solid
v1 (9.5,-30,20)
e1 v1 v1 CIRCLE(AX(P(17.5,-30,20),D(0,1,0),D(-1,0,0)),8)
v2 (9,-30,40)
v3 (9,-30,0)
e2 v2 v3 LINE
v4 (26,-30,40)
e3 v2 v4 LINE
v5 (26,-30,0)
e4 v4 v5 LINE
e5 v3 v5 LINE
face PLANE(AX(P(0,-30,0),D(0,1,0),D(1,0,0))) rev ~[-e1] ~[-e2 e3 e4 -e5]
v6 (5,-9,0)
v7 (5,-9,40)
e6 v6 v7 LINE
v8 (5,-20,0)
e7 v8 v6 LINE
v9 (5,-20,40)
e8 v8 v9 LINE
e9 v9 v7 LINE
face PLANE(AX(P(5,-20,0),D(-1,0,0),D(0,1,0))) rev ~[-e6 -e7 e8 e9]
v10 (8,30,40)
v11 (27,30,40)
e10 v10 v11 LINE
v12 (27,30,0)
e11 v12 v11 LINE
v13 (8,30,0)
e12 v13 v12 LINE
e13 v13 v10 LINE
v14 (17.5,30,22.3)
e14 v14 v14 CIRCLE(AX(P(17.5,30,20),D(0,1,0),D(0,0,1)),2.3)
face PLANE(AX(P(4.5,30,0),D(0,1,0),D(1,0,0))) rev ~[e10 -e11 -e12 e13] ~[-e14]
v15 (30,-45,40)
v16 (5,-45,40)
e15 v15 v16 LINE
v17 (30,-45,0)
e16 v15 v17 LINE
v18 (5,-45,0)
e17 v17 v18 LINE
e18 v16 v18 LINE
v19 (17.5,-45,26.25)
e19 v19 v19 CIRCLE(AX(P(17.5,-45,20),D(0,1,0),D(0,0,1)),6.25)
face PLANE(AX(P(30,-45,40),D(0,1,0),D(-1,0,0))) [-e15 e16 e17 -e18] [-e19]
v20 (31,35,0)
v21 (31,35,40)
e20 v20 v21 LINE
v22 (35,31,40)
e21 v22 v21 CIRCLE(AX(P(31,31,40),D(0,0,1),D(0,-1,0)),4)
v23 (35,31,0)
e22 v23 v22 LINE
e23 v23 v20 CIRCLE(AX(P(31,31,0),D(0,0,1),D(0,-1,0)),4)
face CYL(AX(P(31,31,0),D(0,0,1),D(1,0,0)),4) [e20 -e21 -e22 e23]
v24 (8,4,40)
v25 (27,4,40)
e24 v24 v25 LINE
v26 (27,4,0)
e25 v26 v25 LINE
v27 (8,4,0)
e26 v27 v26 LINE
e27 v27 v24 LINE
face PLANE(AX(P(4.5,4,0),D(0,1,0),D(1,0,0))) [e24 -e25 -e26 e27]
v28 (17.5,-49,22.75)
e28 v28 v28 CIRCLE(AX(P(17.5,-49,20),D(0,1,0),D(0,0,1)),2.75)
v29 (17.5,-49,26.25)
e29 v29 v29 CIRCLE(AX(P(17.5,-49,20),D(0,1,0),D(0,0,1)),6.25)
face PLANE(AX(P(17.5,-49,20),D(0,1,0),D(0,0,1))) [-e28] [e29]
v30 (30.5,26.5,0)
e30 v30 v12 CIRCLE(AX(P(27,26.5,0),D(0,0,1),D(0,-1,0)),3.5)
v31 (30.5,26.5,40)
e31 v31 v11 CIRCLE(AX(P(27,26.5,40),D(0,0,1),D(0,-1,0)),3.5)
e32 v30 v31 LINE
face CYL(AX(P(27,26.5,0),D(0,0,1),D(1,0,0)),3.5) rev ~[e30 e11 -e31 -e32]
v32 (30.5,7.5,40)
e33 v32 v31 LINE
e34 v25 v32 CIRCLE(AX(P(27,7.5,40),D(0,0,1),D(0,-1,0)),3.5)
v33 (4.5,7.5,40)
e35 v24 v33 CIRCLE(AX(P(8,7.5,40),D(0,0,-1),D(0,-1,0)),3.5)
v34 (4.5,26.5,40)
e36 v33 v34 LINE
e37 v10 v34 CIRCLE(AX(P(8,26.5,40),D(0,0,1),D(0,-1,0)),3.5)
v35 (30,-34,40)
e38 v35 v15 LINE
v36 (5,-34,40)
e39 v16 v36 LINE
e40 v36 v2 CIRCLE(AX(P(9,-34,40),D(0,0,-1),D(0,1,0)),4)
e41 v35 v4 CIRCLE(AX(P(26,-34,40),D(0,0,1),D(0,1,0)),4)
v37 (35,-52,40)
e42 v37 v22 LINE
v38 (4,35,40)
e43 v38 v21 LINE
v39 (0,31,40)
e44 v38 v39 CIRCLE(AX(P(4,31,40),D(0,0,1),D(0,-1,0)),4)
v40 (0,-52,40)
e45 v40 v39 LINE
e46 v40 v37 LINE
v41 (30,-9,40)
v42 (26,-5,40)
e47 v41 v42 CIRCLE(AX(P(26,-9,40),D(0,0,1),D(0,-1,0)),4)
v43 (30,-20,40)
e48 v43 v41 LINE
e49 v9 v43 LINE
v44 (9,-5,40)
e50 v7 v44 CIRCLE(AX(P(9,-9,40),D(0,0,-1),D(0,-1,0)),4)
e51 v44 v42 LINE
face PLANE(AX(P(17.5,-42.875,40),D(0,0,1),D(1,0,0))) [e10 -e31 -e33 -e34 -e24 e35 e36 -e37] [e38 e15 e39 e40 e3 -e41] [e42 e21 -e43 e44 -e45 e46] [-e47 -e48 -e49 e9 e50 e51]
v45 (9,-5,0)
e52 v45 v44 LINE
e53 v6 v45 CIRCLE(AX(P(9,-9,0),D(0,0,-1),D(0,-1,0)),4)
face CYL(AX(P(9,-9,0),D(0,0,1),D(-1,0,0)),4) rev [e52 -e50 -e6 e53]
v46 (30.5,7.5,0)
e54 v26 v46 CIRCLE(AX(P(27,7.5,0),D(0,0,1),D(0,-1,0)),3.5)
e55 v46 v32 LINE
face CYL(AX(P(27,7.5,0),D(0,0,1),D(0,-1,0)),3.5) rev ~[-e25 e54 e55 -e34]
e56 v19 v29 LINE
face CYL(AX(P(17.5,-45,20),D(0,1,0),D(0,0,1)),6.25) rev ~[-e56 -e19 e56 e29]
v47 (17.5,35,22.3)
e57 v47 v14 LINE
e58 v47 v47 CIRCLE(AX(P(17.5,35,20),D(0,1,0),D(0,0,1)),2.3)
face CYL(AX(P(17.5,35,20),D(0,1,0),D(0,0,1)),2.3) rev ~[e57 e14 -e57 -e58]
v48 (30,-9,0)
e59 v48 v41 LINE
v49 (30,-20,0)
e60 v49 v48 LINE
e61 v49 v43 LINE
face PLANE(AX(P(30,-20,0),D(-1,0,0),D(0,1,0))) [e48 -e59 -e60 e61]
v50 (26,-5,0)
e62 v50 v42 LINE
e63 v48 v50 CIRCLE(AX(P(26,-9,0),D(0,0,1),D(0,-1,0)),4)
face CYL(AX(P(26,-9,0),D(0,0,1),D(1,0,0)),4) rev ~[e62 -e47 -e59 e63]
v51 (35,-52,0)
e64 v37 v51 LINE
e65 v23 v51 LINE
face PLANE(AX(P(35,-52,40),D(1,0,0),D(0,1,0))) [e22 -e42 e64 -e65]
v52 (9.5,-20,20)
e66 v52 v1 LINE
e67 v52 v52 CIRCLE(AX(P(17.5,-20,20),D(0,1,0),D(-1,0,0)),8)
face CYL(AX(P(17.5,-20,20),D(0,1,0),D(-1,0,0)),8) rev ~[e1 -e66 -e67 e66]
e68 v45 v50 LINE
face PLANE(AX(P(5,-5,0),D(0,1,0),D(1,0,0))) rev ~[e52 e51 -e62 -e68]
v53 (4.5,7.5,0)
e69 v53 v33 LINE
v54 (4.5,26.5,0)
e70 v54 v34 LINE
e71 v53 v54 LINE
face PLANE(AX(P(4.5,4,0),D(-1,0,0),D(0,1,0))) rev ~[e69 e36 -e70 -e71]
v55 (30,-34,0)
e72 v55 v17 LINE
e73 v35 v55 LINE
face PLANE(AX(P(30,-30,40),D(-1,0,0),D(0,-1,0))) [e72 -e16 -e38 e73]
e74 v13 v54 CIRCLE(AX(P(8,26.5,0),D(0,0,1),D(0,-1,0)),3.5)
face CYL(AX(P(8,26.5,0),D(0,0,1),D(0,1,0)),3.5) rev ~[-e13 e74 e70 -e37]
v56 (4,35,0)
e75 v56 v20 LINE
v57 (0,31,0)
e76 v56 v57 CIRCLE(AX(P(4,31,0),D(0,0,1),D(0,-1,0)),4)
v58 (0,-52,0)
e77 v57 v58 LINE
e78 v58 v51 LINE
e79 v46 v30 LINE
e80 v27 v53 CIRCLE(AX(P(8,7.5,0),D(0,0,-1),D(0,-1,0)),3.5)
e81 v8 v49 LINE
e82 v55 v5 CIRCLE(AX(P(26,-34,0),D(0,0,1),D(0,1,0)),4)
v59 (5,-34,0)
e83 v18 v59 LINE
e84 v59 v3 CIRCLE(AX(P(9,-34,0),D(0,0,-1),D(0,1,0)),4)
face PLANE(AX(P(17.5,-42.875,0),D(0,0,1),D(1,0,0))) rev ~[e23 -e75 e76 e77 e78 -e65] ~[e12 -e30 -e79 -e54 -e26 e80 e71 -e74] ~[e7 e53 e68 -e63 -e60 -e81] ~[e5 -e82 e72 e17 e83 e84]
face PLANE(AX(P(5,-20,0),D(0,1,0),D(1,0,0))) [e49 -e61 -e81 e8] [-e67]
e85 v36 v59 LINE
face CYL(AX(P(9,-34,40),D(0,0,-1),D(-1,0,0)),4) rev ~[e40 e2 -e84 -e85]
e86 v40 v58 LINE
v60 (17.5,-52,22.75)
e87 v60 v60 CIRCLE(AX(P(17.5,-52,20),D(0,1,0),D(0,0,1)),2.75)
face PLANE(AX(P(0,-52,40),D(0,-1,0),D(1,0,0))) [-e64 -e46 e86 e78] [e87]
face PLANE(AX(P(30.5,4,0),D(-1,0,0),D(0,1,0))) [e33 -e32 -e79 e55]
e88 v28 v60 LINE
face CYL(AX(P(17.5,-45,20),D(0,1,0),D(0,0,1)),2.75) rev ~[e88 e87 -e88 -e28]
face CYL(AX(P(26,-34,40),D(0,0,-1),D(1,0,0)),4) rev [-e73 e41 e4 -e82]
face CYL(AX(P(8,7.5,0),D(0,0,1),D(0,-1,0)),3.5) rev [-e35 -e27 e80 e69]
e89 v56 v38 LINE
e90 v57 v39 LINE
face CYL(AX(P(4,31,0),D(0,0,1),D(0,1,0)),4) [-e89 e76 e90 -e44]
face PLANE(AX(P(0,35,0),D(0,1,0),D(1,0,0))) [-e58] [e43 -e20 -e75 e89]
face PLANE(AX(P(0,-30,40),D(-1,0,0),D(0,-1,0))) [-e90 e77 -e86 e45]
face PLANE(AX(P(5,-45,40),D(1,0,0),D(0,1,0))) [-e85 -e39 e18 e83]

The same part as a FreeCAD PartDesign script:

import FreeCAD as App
import Part
import Sketcher

V = App.Vector
Q = App.Units.Quantity


def edges_at(feature, points):
    """Names of the edges that pass closest to the given points."""
    edges = feature.Shape.Edges
    near = lambda p: min(range(len(edges)), key=lambda i: edges[i].distToShape(Part.Vertex(*p))[0])
    return sorted({f"Edge{near(p) + 1}" for p in points})

doc = App.newDocument("Part")
body = doc.addObject("PartDesign::Body", "Body")

# Sketch on XY plane
sketch1 = body.newObject("Sketcher::SketchObject", "Sketch")
sketch1.AttachmentSupport = (doc.getObject("XY_Plane"), [""])
sketch1.MapMode = "FlatFace"
sketch1.addGeometry(Part.LineSegment(V(0, 35, 0), V(0, -30, 0)), False)
sketch1.addGeometry(Part.LineSegment(V(0, -30, 0), V(35, -30, 0)), False)
sketch1.addGeometry(Part.LineSegment(V(35, -30, 0), V(35, 35, 0)), False)
sketch1.addGeometry(Part.LineSegment(V(35, 35, 0), V(0, 35, 0)), False)
sketch1.addGeometry(Part.LineSegment(V(30, 4, 0), V(4, 4, 0)), False)
sketch1.addGeometry(Part.LineSegment(V(4, 4, 0), V(4, 30, 0)), False)
sketch1.addGeometry(Part.LineSegment(V(4, 30, 0), V(30, 30, 0)), False)
sketch1.addGeometry(Part.LineSegment(V(30, 30, 0), V(30, 4, 0)), False)
sketch1.addGeometry(Part.LineSegment(V(5, -20, 0), V(5, -5, 0)), False)
sketch1.addGeometry(Part.LineSegment(V(5, -5, 0), V(30, -5, 0)), False)
sketch1.addGeometry(Part.LineSegment(V(30, -5, 0), V(30, -20, 0)), False)
sketch1.addGeometry(Part.LineSegment(V(30, -20, 0), V(5, -20, 0)), False)
sketch1.addConstraint(Sketcher.Constraint("Coincident", 0, 2, 1, 1))
sketch1.addConstraint(Sketcher.Constraint("Coincident", 1, 2, 2, 1))
sketch1.addConstraint(Sketcher.Constraint("Coincident", 2, 2, 3, 1))
sketch1.addConstraint(Sketcher.Constraint("Coincident", 3, 2, 0, 1))
sketch1.addConstraint(Sketcher.Constraint("Coincident", 4, 2, 5, 1))
sketch1.addConstraint(Sketcher.Constraint("Coincident", 5, 2, 6, 1))
sketch1.addConstraint(Sketcher.Constraint("Coincident", 6, 2, 7, 1))
sketch1.addConstraint(Sketcher.Constraint("Coincident", 7, 2, 4, 1))
sketch1.addConstraint(Sketcher.Constraint("Coincident", 8, 2, 9, 1))
sketch1.addConstraint(Sketcher.Constraint("Coincident", 9, 2, 10, 1))
sketch1.addConstraint(Sketcher.Constraint("Coincident", 10, 2, 11, 1))
sketch1.addConstraint(Sketcher.Constraint("Coincident", 11, 2, 8, 1))
sketch1.addConstraint(Sketcher.Constraint("Vertical", 0))
sketch1.addConstraint(Sketcher.Constraint("Horizontal", 1))
sketch1.addConstraint(Sketcher.Constraint("Vertical", 2))
sketch1.addConstraint(Sketcher.Constraint("Horizontal", 3))
sketch1.addConstraint(Sketcher.Constraint("Horizontal", 4))
sketch1.addConstraint(Sketcher.Constraint("Vertical", 5))
sketch1.addConstraint(Sketcher.Constraint("Horizontal", 6))
sketch1.addConstraint(Sketcher.Constraint("Vertical", 7))
sketch1.addConstraint(Sketcher.Constraint("Vertical", 8))
sketch1.addConstraint(Sketcher.Constraint("Horizontal", 9))
sketch1.addConstraint(Sketcher.Constraint("Vertical", 10))
sketch1.addConstraint(Sketcher.Constraint("Horizontal", 11))
sketch1.addConstraint(Sketcher.Constraint("PointOnObject", 0, 2, -2))
sketch1.addConstraint(Sketcher.Constraint("Equal", 6, 5))
sketch1.addConstraint(Sketcher.Constraint("DistanceX", 1, 1, 1, 2, Q("35 mm")))
sketch1.addConstraint(Sketcher.Constraint("DistanceX", 4, 2, 4, 1, Q("26 mm")))
sketch1.addConstraint(Sketcher.Constraint("DistanceX", 9, 1, 9, 2, Q("25 mm")))
sketch1.addConstraint(Sketcher.Constraint("DistanceY", 0, 2, 0, 1, Q("65 mm")))
sketch1.addConstraint(Sketcher.Constraint("DistanceY", 8, 1, 8, 2, Q("15 mm")))
sketch1.addConstraint(Sketcher.Constraint("DistanceY", 0, 2, -1, 1, Q("30 mm")))
sketch1.addConstraint(Sketcher.Constraint("DistanceY", -1, 1, 4, 2, Q("4 mm")))
sketch1.addConstraint(Sketcher.Constraint("DistanceX", -1, 1, 8, 2, Q("5 mm")))
sketch1.addConstraint(Sketcher.Constraint("DistanceY", 8, 2, -1, 1, Q("5 mm")))
sketch1.addConstraint(Sketcher.Constraint("DistanceX", -1, 1, 4, 2, Q("4.5 mm")))
pad1 = body.newObject("PartDesign::Pad", "Pad")
pad1.Profile = sketch1
pad1.Length = 40
doc.recompute()

fillet = body.newObject("PartDesign::Fillet", "Fillet")
fillet.Base = (pad1, edges_at(pad1, [
    (4.5, 30, 20),
    (4.5, 4, 20),
    (30.5, 4, 20),
    (30.5, 30, 20),
]))
fillet.Radius = 3.5
doc.recompute()

fillet2 = body.newObject("PartDesign::Fillet", "Fillet001")
fillet2.Base = (fillet, edges_at(fillet, [(0, 35, 20), (35, 35, 20)]))
fillet2.Radius = 4

# Sketch on XZ plane
sketch2 = body.newObject("Sketcher::SketchObject", "Sketch001")
sketch2.AttachmentSupport = (doc.getObject("XZ_Plane"), [""])
sketch2.MapMode = "FlatFace"
sketch2.AttachmentOffset = App.Placement(V(0, 0, -35), App.Rotation())
sketch2.addGeometry(Part.Circle(V(17.5, 20, 0), V(0, 0, 1), 2.3), False)
sketch2.addConstraint(Sketcher.Constraint("Diameter", 0, Q("4.6 mm")))
sketch2.addConstraint(Sketcher.Constraint("DistanceY", -1, 1, 0, 3, Q("20 mm")))
sketch2.addConstraint(Sketcher.Constraint("DistanceX", -1, 1, 0, 3, Q("17.5 mm")))
pocket1 = body.newObject("PartDesign::Pocket", "Pocket")
pocket1.Profile = sketch2
pocket1.Length = 5
pocket1.Reversed = True

# Sketch on XY plane
sketch3 = body.newObject("Sketcher::SketchObject", "Sketch002")
sketch3.AttachmentSupport = (doc.getObject("XY_Plane"), [""])
sketch3.MapMode = "FlatFace"
sketch3.AttachmentOffset = App.Placement(V(0, 0, 40), App.Rotation())
sketch3.addGeometry(Part.LineSegment(V(5, -30, 0), V(0, -30, 0)), False)
sketch3.addGeometry(Part.LineSegment(V(0, -30, 0), V(0, -52, 0)), False)
sketch3.addGeometry(Part.LineSegment(V(0, -52, 0), V(35, -52, 0)), False)
sketch3.addGeometry(Part.LineSegment(V(35, -52, 0), V(35, -30, 0)), False)
sketch3.addGeometry(Part.LineSegment(V(35, -30, 0), V(30, -30, 0)), False)
sketch3.addGeometry(Part.LineSegment(V(30, -30, 0), V(30, -45, 0)), False)
sketch3.addGeometry(Part.LineSegment(V(30, -45, 0), V(5, -45, 0)), False)
sketch3.addGeometry(Part.LineSegment(V(5, -45, 0), V(5, -30, 0)), False)
sketch3.addConstraint(Sketcher.Constraint("Coincident", 0, 2, 1, 1))
sketch3.addConstraint(Sketcher.Constraint("Coincident", 1, 2, 2, 1))
sketch3.addConstraint(Sketcher.Constraint("Coincident", 2, 2, 3, 1))
sketch3.addConstraint(Sketcher.Constraint("Coincident", 3, 2, 4, 1))
sketch3.addConstraint(Sketcher.Constraint("Coincident", 4, 2, 5, 1))
sketch3.addConstraint(Sketcher.Constraint("Coincident", 5, 2, 6, 1))
sketch3.addConstraint(Sketcher.Constraint("Coincident", 6, 2, 7, 1))
sketch3.addConstraint(Sketcher.Constraint("Coincident", 7, 2, 0, 1))
sketch3.addConstraint(Sketcher.Constraint("Horizontal", 0))
sketch3.addConstraint(Sketcher.Constraint("Vertical", 1))
sketch3.addConstraint(Sketcher.Constraint("Horizontal", 2))
sketch3.addConstraint(Sketcher.Constraint("Vertical", 3))
sketch3.addConstraint(Sketcher.Constraint("Horizontal", 4))
sketch3.addConstraint(Sketcher.Constraint("Vertical", 5))
sketch3.addConstraint(Sketcher.Constraint("Horizontal", 6))
sketch3.addConstraint(Sketcher.Constraint("Vertical", 7))
sketch3.addConstraint(Sketcher.Constraint("PointOnObject", 0, 2, -2))
sketch3.addConstraint(Sketcher.Constraint("Horizontal", 0, 2, 3, 2))
sketch3.addConstraint(Sketcher.Constraint("Equal", 0, 4))
sketch3.addConstraint(Sketcher.Constraint("DistanceX", 0, 2, 0, 1, Q("5 mm")))
sketch3.addConstraint(Sketcher.Constraint("DistanceX", 2, 1, 2, 2, Q("35 mm")))
sketch3.addConstraint(Sketcher.Constraint("DistanceY", 1, 2, 1, 1, Q("22 mm")))
sketch3.addConstraint(Sketcher.Constraint("DistanceY", 5, 2, 5, 1, Q("15 mm")))
sketch3.addConstraint(Sketcher.Constraint("DistanceY", 0, 2, -1, 1, Q("30 mm")))
pad2 = body.newObject("PartDesign::Pad", "Pad001")
pad2.Profile = sketch3
pad2.Length = 40
pad2.Reversed = True

# Sketch on XZ plane
sketch4 = body.newObject("Sketcher::SketchObject", "Sketch003")
sketch4.AttachmentSupport = (doc.getObject("XZ_Plane"), [""])
sketch4.MapMode = "FlatFace"
sketch4.AttachmentOffset = App.Placement(V(0, 0, 20), App.Rotation())
sketch4.addGeometry(Part.Circle(V(18, 20, 0), V(0, 0, 1), 8), False)
sketch4.addConstraint(Sketcher.Constraint("Diameter", 0, Q("16 mm")))
sketch4.addConstraint(Sketcher.Constraint("DistanceY", -1, 1, 0, 3, Q("20 mm")))
sketch4.addConstraint(Sketcher.Constraint("DistanceX", -1, 1, 0, 3, Q("17.5 mm")))
pocket2 = body.newObject("PartDesign::Pocket", "Pocket001")
pocket2.Profile = sketch4
pocket2.Length = 10
pocket2.Reversed = True

# Sketch on XZ plane
sketch5 = body.newObject("Sketcher::SketchObject", "Sketch004")
sketch5.AttachmentSupport = (doc.getObject("XZ_Plane"), [""])
sketch5.MapMode = "FlatFace"
sketch5.AttachmentOffset = App.Placement(V(0, 0, 45), App.Rotation())
sketch5.addGeometry(Part.Circle(V(18, 20, 0), V(0, 0, 1), 6), False)
sketch5.addConstraint(Sketcher.Constraint("Diameter", 0, Q("12.5 mm")))
sketch5.addConstraint(Sketcher.Constraint("DistanceY", -1, 1, 0, 3, Q("20 mm")))
sketch5.addConstraint(Sketcher.Constraint("DistanceX", -1, 1, 0, 3, Q("17.5 mm")))
pocket3 = body.newObject("PartDesign::Pocket", "Pocket002")
pocket3.Profile = sketch5
pocket3.Length = 4
pocket3.Reversed = True

# Sketch on XZ plane
sketch6 = body.newObject("Sketcher::SketchObject", "Sketch005")
sketch6.AttachmentSupport = (doc.getObject("XZ_Plane"), [""])
sketch6.MapMode = "FlatFace"
sketch6.AttachmentOffset = App.Placement(V(0, 0, 45), App.Rotation())
sketch6.addGeometry(Part.Circle(V(17.5, 20, 0), V(0, 0, 1), 2.8), False)
sketch6.addConstraint(Sketcher.Constraint("Diameter", 0, Q("5.5 mm")))
sketch6.addConstraint(Sketcher.Constraint("DistanceY", -1, 1, 0, 3, Q("20 mm")))
sketch6.addConstraint(Sketcher.Constraint("DistanceX", -1, 1, 0, 3, Q("17.5 mm")))
pocket4 = body.newObject("PartDesign::Pocket", "Pocket003")
pocket4.Profile = sketch6
pocket4.Type = "ThroughAll"
pocket4.Reversed = True
doc.recompute()

fillet3 = body.newObject("PartDesign::Fillet", "Fillet002")
fillet3.Base = (pocket4, edges_at(pocket4, [
    (30, -5, 20),
    (5, -5, 20),
    (30, -30, 20),
    (5, -30, 20),
]))
fillet3.Radius = 4

doc.recompute()
